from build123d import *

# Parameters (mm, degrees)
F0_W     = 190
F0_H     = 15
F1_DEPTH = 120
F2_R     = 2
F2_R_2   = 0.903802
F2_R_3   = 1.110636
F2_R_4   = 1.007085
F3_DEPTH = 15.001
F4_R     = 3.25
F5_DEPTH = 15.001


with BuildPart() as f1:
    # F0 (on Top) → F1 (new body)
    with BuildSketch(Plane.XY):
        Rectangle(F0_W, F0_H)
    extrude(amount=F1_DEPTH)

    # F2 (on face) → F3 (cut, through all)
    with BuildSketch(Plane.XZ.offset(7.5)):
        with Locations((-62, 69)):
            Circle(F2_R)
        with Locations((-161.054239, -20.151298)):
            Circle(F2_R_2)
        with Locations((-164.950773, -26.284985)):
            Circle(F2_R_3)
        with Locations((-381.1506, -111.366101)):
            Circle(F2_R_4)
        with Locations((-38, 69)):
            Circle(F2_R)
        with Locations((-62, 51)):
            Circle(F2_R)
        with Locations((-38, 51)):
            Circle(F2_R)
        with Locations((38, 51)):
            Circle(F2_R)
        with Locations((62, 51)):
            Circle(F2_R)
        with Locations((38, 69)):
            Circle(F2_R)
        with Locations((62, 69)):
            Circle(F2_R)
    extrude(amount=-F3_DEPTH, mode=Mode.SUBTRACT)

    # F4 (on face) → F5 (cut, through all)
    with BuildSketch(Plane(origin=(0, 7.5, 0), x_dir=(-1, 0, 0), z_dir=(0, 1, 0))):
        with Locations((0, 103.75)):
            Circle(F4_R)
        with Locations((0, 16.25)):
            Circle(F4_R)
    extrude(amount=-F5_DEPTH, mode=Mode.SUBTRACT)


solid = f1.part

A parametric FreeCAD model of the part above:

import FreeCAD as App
import Part
import Sketcher

V = App.Vector
Q = App.Units.Quantity

doc = App.newDocument("Part")
body = doc.addObject("PartDesign::Body", "Body")

sketch1 = body.newObject("Sketcher::SketchObject", "Sketch")
sketch1.AttachmentSupport = (doc.getObject("XY_Plane"), [""])
sketch1.MapMode = "FlatFace"
sketch1.addGeometry([
    Part.LineSegment(V(-95, 7.5, 0), V(-95, -7.5, 0)),
    Part.LineSegment(V(-95, -7.5, 0), V(95, -7.5, 0)),
    Part.LineSegment(V(95, -7.5, 0), V(95, 7.5, 0)),
    Part.LineSegment(V(95, 7.5, 0), V(-95, 7.5, 0)),
], False)
sketch1.addConstraint([
    Sketcher.Constraint("Coincident", 0, 2, 1, 1),
    Sketcher.Constraint("Coincident", 1, 2, 2, 1),
    Sketcher.Constraint("Coincident", 2, 2, 3, 1),
    Sketcher.Constraint("Coincident", 3, 2, 0, 1),
    Sketcher.Constraint("Vertical", 0),
    Sketcher.Constraint("Horizontal", 1),
    Sketcher.Constraint("Vertical", 2),
    Sketcher.Constraint("Horizontal", 3),
    Sketcher.Constraint("Symmetric", 0, 2, 2, 2, -1, 1),
    Sketcher.Constraint("DistanceX", 1, 1, 1, 2, Q("190 mm")),
    Sketcher.Constraint("DistanceY", 0, 2, 0, 1, Q("15 mm")),
])
pad1 = body.newObject("PartDesign::Pad", "Pad")
pad1.Profile = sketch1
pad1.Length = 120

sketch2 = body.newObject("Sketcher::SketchObject", "Sketch001")
sketch2.AttachmentSupport = (doc.getObject("XZ_Plane"), [""])
sketch2.MapMode = "FlatFace"
sketch2.AttachmentOffset = App.Placement(V(0, 0, 7.5), App.Rotation())
sketch2.addGeometry([
    Part.Circle(V(-62, 69, 0), V(0, 0, 1), 2),
    Part.Circle(V(-161.054239, -20.151298, 0), V(0, 0, 1), 0.903802),
    Part.Circle(V(-164.950773, -26.284985, 0), V(0, 0, 1), 1.110636),
    Part.Circle(V(-381.1506, -111.366101, 0), V(0, 0, 1), 1.007085),
    Part.Circle(V(-38, 69, 0), V(0, 0, 1), 2),
    Part.Circle(V(-62, 51, 0), V(0, 0, 1), 2),
    Part.Circle(V(-38, 51, 0), V(0, 0, 1), 2),
    Part.Circle(V(38, 51, 0), V(0, 0, 1), 2),
    Part.Circle(V(62, 51, 0), V(0, 0, 1), 2),
    Part.Circle(V(38, 69, 0), V(0, 0, 1), 2),
    Part.Circle(V(62, 69, 0), V(0, 0, 1), 2),
], False)
sketch2.addConstraint([
    Sketcher.Constraint("Equal", 0, 4),
    Sketcher.Constraint("Equal", 4, 5),
    Sketcher.Constraint("Equal", 5, 6),
    Sketcher.Constraint("Equal", 6, 7),
    Sketcher.Constraint("Equal", 7, 8),
    Sketcher.Constraint("Equal", 8, 9),
    Sketcher.Constraint("Equal", 9, 10),
    Sketcher.Constraint("Symmetric", 6, 3, 7, 3, -2),
    Sketcher.Constraint("Symmetric", 5, 3, 8, 3, -2),
    Sketcher.Constraint("Symmetric", 4, 3, 9, 3, -2),
    Sketcher.Constraint("Symmetric", 0, 3, 10, 3, -2),
    Sketcher.Constraint("Horizontal", 0, 3, 4, 3),
    Sketcher.Constraint("Horizontal", 5, 3, 6, 3),
    Sketcher.Constraint("Vertical", 0, 3, 5, 3),
    Sketcher.Constraint("Vertical", 4, 3, 6, 3),
    Sketcher.Constraint("Diameter", 0, Q("4 mm")),
    Sketcher.Constraint("DistanceX", 0, 3, -1, 1, Q("62 mm")),
    Sketcher.Constraint("DistanceY", -1, 1, 0, 3, Q("69 mm")),
    Sketcher.Constraint("DistanceX", 4, 3, -1, 1, Q("38 mm")),
    Sketcher.Constraint("DistanceY", -1, 1, 5, 3, Q("51 mm")),
    Sketcher.Constraint("Diameter", 2, Q("2.221272 mm")),
    Sketcher.Constraint("Diameter", 3, Q("2.01417 mm")),
    Sketcher.Constraint("Diameter", 1, Q("1.807604 mm")),
    Sketcher.Constraint("DistanceY", 1, 3, -1, 1, Q("20.151298 mm")),
    Sketcher.Constraint("DistanceX", 3, 3, -1, 1, Q("381.1506 mm")),
    Sketcher.Constraint("DistanceY", 3, 3, -1, 1, Q("111.366101 mm")),
    Sketcher.Constraint("DistanceX", 1, 3, -1, 1, Q("161.054239 mm")),
    Sketcher.Constraint("DistanceX", 2, 3, -1, 1, Q("164.950773 mm")),
    Sketcher.Constraint("DistanceY", 2, 3, -1, 1, Q("26.284985 mm")),
])
pocket1 = body.newObject("PartDesign::Pocket", "Pocket")
pocket1.Profile = sketch2
pocket1.Type = "ThroughAll"

sketch3 = body.newObject("Sketcher::SketchObject", "Sketch002")
sketch3.AttachmentSupport = (doc.getObject("XZ_Plane"), [""])
sketch3.MapMode = "FlatFace"
sketch3.AttachmentOffset = App.Placement(V(0, 0, -7.5), App.Rotation())
sketch3.addGeometry([
    Part.Circle(V(0, 103.75, 0), V(0, 0, 1), 3.25),
    Part.Circle(V(0, 16.25, 0), V(0, 0, 1), 3.25),
], False)
sketch3.addConstraint([
    Sketcher.Constraint("Equal", 0, 1),
    Sketcher.Constraint("PointOnObject", 0, 3, -2),
    Sketcher.Constraint("PointOnObject", 1, 3, -2),
    Sketcher.Constraint("Diameter", 0, Q("6.5 mm")),
    Sketcher.Constraint("DistanceY", 1, 3, 0, 3, Q("87.5 mm")),
    Sketcher.Constraint("DistanceY", -1, 1, 0, 3, Q("103.75 mm")),
])
pocket2 = body.newObject("PartDesign::Pocket", "Pocket001")
pocket2.Profile = sketch3
pocket2.Type = "ThroughAll"
pocket2.Reversed = True

doc.recompute()
